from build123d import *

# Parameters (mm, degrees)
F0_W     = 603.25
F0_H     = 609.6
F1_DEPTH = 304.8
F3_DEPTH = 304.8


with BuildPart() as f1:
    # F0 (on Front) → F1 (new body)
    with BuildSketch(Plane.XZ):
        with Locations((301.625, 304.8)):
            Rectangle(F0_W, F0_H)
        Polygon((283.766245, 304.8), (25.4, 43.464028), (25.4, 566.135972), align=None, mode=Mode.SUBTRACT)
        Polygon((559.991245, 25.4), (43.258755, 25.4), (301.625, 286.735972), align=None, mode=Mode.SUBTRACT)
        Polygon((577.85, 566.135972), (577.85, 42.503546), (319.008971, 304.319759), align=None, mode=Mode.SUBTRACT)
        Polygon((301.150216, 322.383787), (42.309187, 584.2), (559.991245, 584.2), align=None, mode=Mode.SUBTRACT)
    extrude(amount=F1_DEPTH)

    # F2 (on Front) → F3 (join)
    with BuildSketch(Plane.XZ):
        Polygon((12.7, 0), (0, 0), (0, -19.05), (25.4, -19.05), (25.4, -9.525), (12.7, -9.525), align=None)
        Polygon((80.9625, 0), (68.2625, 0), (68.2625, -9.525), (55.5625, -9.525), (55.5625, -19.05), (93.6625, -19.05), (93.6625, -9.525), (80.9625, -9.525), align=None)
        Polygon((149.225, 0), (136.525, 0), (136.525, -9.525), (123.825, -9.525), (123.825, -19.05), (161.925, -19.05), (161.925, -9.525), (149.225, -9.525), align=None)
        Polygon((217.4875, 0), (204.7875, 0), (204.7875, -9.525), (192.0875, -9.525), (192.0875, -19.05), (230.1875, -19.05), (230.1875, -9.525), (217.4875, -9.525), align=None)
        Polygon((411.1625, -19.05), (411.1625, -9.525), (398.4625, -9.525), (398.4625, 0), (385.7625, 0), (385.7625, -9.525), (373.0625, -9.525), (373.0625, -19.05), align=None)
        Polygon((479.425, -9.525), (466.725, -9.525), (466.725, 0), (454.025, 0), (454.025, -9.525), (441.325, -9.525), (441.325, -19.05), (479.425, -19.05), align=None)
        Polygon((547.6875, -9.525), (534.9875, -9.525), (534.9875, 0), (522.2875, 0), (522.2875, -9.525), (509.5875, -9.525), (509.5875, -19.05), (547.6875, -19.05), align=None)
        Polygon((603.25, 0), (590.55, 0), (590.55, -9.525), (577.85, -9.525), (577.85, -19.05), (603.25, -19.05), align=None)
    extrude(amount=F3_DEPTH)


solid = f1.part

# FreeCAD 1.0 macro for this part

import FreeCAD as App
import Part
import Sketcher

V = App.Vector
Q = App.Units.Quantity


def add_polygon(sketch, points):
    """Adds a closed chain of lines whose ends are joined by coincident constraints."""
    first, n = sketch.GeometryCount, len(points)
    for a, b in zip(points, points[1:] + points[:1]):
        sketch.addGeometry(Part.LineSegment(App.Vector(*a, 0), App.Vector(*b, 0)), False)
    for i in range(n):
        sketch.addConstraint(Sketcher.Constraint("Coincident", first + i, 2, first + (i + 1) % n, 1))

doc = App.newDocument("Part")
body = doc.addObject("PartDesign::Body", "Body")

# Sketch on XZ plane
sketch1 = doc.addObject("Sketcher::SketchObject", "Sketch")
body.addObject(sketch1)
sketch1.AttachmentSupport = (doc.XZ_Plane, [""])
sketch1.MapMode = "FlatFace"
add_polygon(sketch1, [(0, 609.6), (0, 0), (603.25, 0), (603.25, 609.6)])  # lines 0-3
add_polygon(sketch1, [(301.625, 286.735972), (559.991245, 25.4), (43.258755, 25.4)])  # lines 4-6
add_polygon(sketch1, [(319.008971, 304.319759), (577.85, 566.135972), (577.85, 42.503546)])  # lines 7-9
add_polygon(sketch1, [(25.4, 566.135972), (283.766245, 304.8), (25.4, 43.464028)])  # lines 10-12
add_polygon(sketch1, [(559.991245, 584.2), (301.150216, 322.383787), (42.309187, 584.2)])  # lines 13-15
sketch1.addConstraint(Sketcher.Constraint("Vertical", 0))
sketch1.addConstraint(Sketcher.Constraint("Horizontal", 1))
sketch1.addConstraint(Sketcher.Constraint("Vertical", 2))
sketch1.addConstraint(Sketcher.Constraint("Horizontal", 3))
sketch1.addConstraint(Sketcher.Constraint("Horizontal", 5))
sketch1.addConstraint(Sketcher.Constraint("Vertical", 8))
sketch1.addConstraint(Sketcher.Constraint("Vertical", 12))
sketch1.addConstraint(Sketcher.Constraint("Horizontal", 15))
sketch1.addConstraint(Sketcher.Constraint("Coincident", 0, 2, -1, 1))
sketch1.addConstraint(Sketcher.Constraint("Parallel", 6, 7))
sketch1.addConstraint(Sketcher.Constraint("Parallel", 4, 9))
sketch1.addConstraint(Sketcher.Constraint("Parallel", 9, 10))
sketch1.addConstraint(Sketcher.Constraint("Parallel", 7, 11))
sketch1.addConstraint(Sketcher.Constraint("Parallel", 11, 13))
sketch1.addConstraint(Sketcher.Constraint("Parallel", 10, 14))
sketch1.addConstraint(Sketcher.Constraint("Horizontal", 7, 2, 12, 2))
sketch1.addConstraint(Sketcher.Constraint("Vertical", 4, 2, 15, 2))
sketch1.addConstraint(Sketcher.Constraint("Equal", 4, 6))
sketch1.addConstraint(Sketcher.Constraint("Equal", 6, 10))
sketch1.addConstraint(Sketcher.Constraint("Equal", 9, 13))
sketch1.addConstraint(Sketcher.Constraint("DistanceY", 0, 2, 0, 1, Q("24 in")))
sketch1.addConstraint(Sketcher.Constraint("DistanceY", -1, 1, 4, 2, Q("1 in")))
sketch1.addConstraint(Sketcher.Constraint("DistanceY", -1, 1, 10, 2, Q("12 in")))
sketch1.addConstraint(Sketcher.Constraint("DistanceX", -1, 1, 11, 2, Q("1 in")))
sketch1.addConstraint(Sketcher.Constraint("DistanceY", -1, 1, 14, 2, Q("23 in")))
sketch1.addConstraint(Sketcher.Constraint("DistanceX", 7, 2, 2, 2, Q("1 in")))
sketch1.addConstraint(Sketcher.Constraint("DistanceX", 1, 1, 1, 2, Q("23.75 in")))
sketch1.addConstraint(Sketcher.Constraint("DistanceX", -1, 1, 6, 2, Q("11.875 in")))
sketch1.addConstraint(Sketcher.Constraint("DistanceX", 5, 2, 5, 1, 516.73249))
sketch1.addConstraint(Sketcher.Constraint("DistanceX", 15, 1, 15, 2, 517.682058))
sketch1.addConstraint(Sketcher.Constraint("Distance", 4, 367.490962))
pad1 = doc.addObject("PartDesign::Pad", "Pad")
body.addObject(pad1)
pad1.Profile = sketch1
pad1.Length = Q("12 in")

# Sketch on XZ plane
sketch2 = doc.addObject("Sketcher::SketchObject", "Sketch001")
body.addObject(sketch2)
sketch2.AttachmentSupport = (doc.XZ_Plane, [""])
sketch2.MapMode = "FlatFace"
add_polygon(sketch2, [(12.7, 0), (0, 0), (0, -19.05), (25.4, -19.05), (25.4, -9.525), (12.7, -9.525)])  # lines 0-5
add_polygon(sketch2, [(80.9625, 0), (68.2625, 0), (68.2625, -9.525), (55.5625, -9.525), (55.5625, -19.05), (93.6625, -19.05), (93.6625, -9.525), (80.9625, -9.525)])  # lines 6-13
add_polygon(sketch2, [(149.225, 0), (136.525, 0), (136.525, -9.525), (123.825, -9.525), (123.825, -19.05), (161.925, -19.05), (161.925, -9.525), (149.225, -9.525)])  # lines 14-21
add_polygon(sketch2, [(217.4875, 0), (204.7875, 0), (204.7875, -9.525), (192.0875, -9.525), (192.0875, -19.05), (230.1875, -19.05), (230.1875, -9.525), (217.4875, -9.525)])  # lines 22-29
add_polygon(sketch2, [(411.1625, -19.05), (411.1625, -9.525), (398.4625, -9.525), (398.4625, 0), (385.7625, 0), (385.7625, -9.525), (373.0625, -9.525), (373.0625, -19.05)])  # lines 30-37
add_polygon(sketch2, [(479.425, -9.525), (466.725, -9.525), (466.725, 0), (454.025, 0), (454.025, -9.525), (441.325, -9.525), (441.325, -19.05), (479.425, -19.05)])  # lines 38-45
add_polygon(sketch2, [(547.6875, -9.525), (534.9875, -9.525), (534.9875, 0), (522.2875, 0), (522.2875, -9.525), (509.5875, -9.525), (509.5875, -19.05), (547.6875, -19.05)])  # lines 46-53
add_polygon(sketch2, [(603.25, 0), (590.55, 0), (590.55, -9.525), (577.85, -9.525), (577.85, -19.05), (603.25, -19.05)])  # lines 54-59
sketch2.addConstraint(Sketcher.Constraint("Horizontal", 0))
sketch2.addConstraint(Sketcher.Constraint("Vertical", 1))
sketch2.addConstraint(Sketcher.Constraint("Horizontal", 2))
sketch2.addConstraint(Sketcher.Constraint("Vertical", 3))
sketch2.addConstraint(Sketcher.Constraint("Horizontal", 4))
sketch2.addConstraint(Sketcher.Constraint("Vertical", 5))
sketch2.addConstraint(Sketcher.Constraint("Horizontal", 6))
sketch2.addConstraint(Sketcher.Constraint("Vertical", 7))
sketch2.addConstraint(Sketcher.Constraint("Horizontal", 8))
sketch2.addConstraint(Sketcher.Constraint("Vertical", 9))
sketch2.addConstraint(Sketcher.Constraint("Horizontal", 10))
sketch2.addConstraint(Sketcher.Constraint("Vertical", 11))
sketch2.addConstraint(Sketcher.Constraint("Horizontal", 12))
sketch2.addConstraint(Sketcher.Constraint("Vertical", 13))
sketch2.addConstraint(Sketcher.Constraint("Horizontal", 14))
sketch2.addConstraint(Sketcher.Constraint("Vertical", 15))
sketch2.addConstraint(Sketcher.Constraint("Horizontal", 16))
sketch2.addConstraint(Sketcher.Constraint("Vertical", 17))
sketch2.addConstraint(Sketcher.Constraint("Horizontal", 18))
sketch2.addConstraint(Sketcher.Constraint("Vertical", 19))
sketch2.addConstraint(Sketcher.Constraint("Horizontal", 20))
sketch2.addConstraint(Sketcher.Constraint("Vertical", 21))
sketch2.addConstraint(Sketcher.Constraint("Horizontal", 22))
sketch2.addConstraint(Sketcher.Constraint("Vertical", 23))
sketch2.addConstraint(Sketcher.Constraint("Horizontal", 24))
sketch2.addConstraint(Sketcher.Constraint("Vertical", 25))
sketch2.addConstraint(Sketcher.Constraint("Horizontal", 26))
sketch2.addConstraint(Sketcher.Constraint("Vertical", 27))
sketch2.addConstraint(Sketcher.Constraint("Horizontal", 28))
sketch2.addConstraint(Sketcher.Constraint("Vertical", 29))
sketch2.addConstraint(Sketcher.Constraint("Vertical", 30))
sketch2.addConstraint(Sketcher.Constraint("Horizontal", 31))
sketch2.addConstraint(Sketcher.Constraint("Vertical", 32))
sketch2.addConstraint(Sketcher.Constraint("Horizontal", 33))
sketch2.addConstraint(Sketcher.Constraint("Vertical", 34))
sketch2.addConstraint(Sketcher.Constraint("Horizontal", 35))
sketch2.addConstraint(Sketcher.Constraint("Vertical", 36))
sketch2.addConstraint(Sketcher.Constraint("Horizontal", 37))
sketch2.addConstraint(Sketcher.Constraint("Horizontal", 38))
sketch2.addConstraint(Sketcher.Constraint("Vertical", 39))
sketch2.addConstraint(Sketcher.Constraint("Horizontal", 40))
sketch2.addConstraint(Sketcher.Constraint("Vertical", 41))
sketch2.addConstraint(Sketcher.Constraint("Horizontal", 42))
sketch2.addConstraint(Sketcher.Constraint("Vertical", 43))
sketch2.addConstraint(Sketcher.Constraint("Horizontal", 44))
sketch2.addConstraint(Sketcher.Constraint("Vertical", 45))
sketch2.addConstraint(Sketcher.Constraint("Horizontal", 46))
sketch2.addConstraint(Sketcher.Constraint("Vertical", 47))
sketch2.addConstraint(Sketcher.Constraint("Horizontal", 48))
sketch2.addConstraint(Sketcher.Constraint("Vertical", 49))
sketch2.addConstraint(Sketcher.Constraint("Horizontal", 50))
sketch2.addConstraint(Sketcher.Constraint("Vertical", 51))
sketch2.addConstraint(Sketcher.Constraint("Horizontal", 52))
sketch2.addConstraint(Sketcher.Constraint("Vertical", 53))
sketch2.addConstraint(Sketcher.Constraint("Horizontal", 54))
sketch2.addConstraint(Sketcher.Constraint("Vertical", 55))
sketch2.addConstraint(Sketcher.Constraint("Horizontal", 56))
sketch2.addConstraint(Sketcher.Constraint("Vertical", 57))
sketch2.addConstraint(Sketcher.Constraint("Horizontal", 58))
sketch2.addConstraint(Sketcher.Constraint("Vertical", 59))
sketch2.addConstraint(Sketcher.Constraint("Coincident", 0, 2, -1, 1))
sketch2.addConstraint(Sketcher.Constraint("PointOnObject", 6, 2, -1))
sketch2.addConstraint(Sketcher.Constraint("PointOnObject", 14, 2, -1))
sketch2.addConstraint(Sketcher.Constraint("PointOnObject", 22, 2, -1))
sketch2.addConstraint(Sketcher.Constraint("PointOnObject", 32, 2, -1))
sketch2.addConstraint(Sketcher.Constraint("PointOnObject", 39, 2, -1))
sketch2.addConstraint(Sketcher.Constraint("PointOnObject", 47, 2, -1))
sketch2.addConstraint(Sketcher.Constraint("PointOnObject", 54, 2, -1))
sketch2.addConstraint(Sketcher.Constraint("Horizontal", 4, 2, 7, 2))
sketch2.addConstraint(Sketcher.Constraint("Horizontal", 2, 2, 9, 2))
sketch2.addConstraint(Sketcher.Constraint("Horizontal", 8, 2, 11, 2))
sketch2.addConstraint(Sketcher.Constraint("Horizontal", 12, 2, 15, 2))
sketch2.addConstraint(Sketcher.Constraint("Horizontal", 10, 2, 17, 2))
sketch2.addConstraint(Sketcher.Constraint("Horizontal", 16, 2, 19, 2))
sketch2.addConstraint(Sketcher.Constraint("Horizontal", 20, 2, 23, 2))
sketch2.addConstraint(Sketcher.Constraint("Horizontal", 18, 2, 25, 2))
sketch2.addConstraint(Sketcher.Constraint("Horizontal", 24, 2, 27, 2))
sketch2.addConstraint(Sketcher.Constraint("Horizontal", 28, 2, 30, 2))
sketch2.addConstraint(Sketcher.Constraint("Horizontal", 31, 2, 34, 2))
sketch2.addConstraint(Sketcher.Constraint("Horizontal", 26, 2, 36, 2))
sketch2.addConstraint(Sketcher.Constraint("Horizontal", 35, 2, 38, 2))
sketch2.addConstraint(Sketcher.Constraint("Horizontal", 38, 2, 41, 2))
sketch2.addConstraint(Sketcher.Constraint("Horizontal", 37, 2, 43, 2))
sketch2.addConstraint(Sketcher.Constraint("Horizontal", 45, 2, 46, 2))
sketch2.addConstraint(Sketcher.Constraint("Horizontal", 46, 2, 49, 2))
sketch2.addConstraint(Sketcher.Constraint("Horizontal", 44, 2, 51, 2))
sketch2.addConstraint(Sketcher.Constraint("Horizontal", 53, 2, 55, 2))
sketch2.addConstraint(Sketcher.Constraint("Horizontal", 52, 2, 57, 2))
sketch2.addConstraint(Sketcher.Constraint("Equal", 0, 4))
sketch2.addConstraint(Sketcher.Constraint("Equal", 4, 6))
sketch2.addConstraint(Sketcher.Constraint("Equal", 6, 8))
sketch2.addConstraint(Sketcher.Constraint("Equal", 8, 12))
sketch2.addConstraint(Sketcher.Constraint("Equal", 12, 14))
sketch2.addConstraint(Sketcher.Constraint("Equal", 14, 16))
sketch2.addConstraint(Sketcher.Constraint("Equal", 10, 18))
sketch2.addConstraint(Sketcher.Constraint("Equal", 20, 22))
sketch2.addConstraint(Sketcher.Constraint("Equal", 22, 24))
sketch2.addConstraint(Sketcher.Constraint("Equal", 18, 26))
sketch2.addConstraint(Sketcher.Constraint("Equal", 28, 31))
sketch2.addConstraint(Sketcher.Constraint("Equal", 31, 33))
sketch2.addConstraint(Sketcher.Constraint("Equal", 33, 35))
sketch2.addConstraint(Sketcher.Constraint("Equal", 35, 38))
sketch2.addConstraint(Sketcher.Constraint("Equal", 38, 40))
sketch2.addConstraint(Sketcher.Constraint("Equal", 40, 42))
sketch2.addConstraint(Sketcher.Constraint("Equal", 42, 46))
sketch2.addConstraint(Sketcher.Constraint("Equal", 46, 48))
sketch2.addConstraint(Sketcher.Constraint("Equal", 48, 50))
sketch2.addConstraint(Sketcher.Constraint("Equal", 50, 54))
sketch2.addConstraint(Sketcher.Constraint("Equal", 54, 56))
sketch2.addConstraint(Sketcher.Constraint("Equal", 3, 5))
sketch2.addConstraint(Sketcher.Constraint("DistanceX", 2, 1, 2, 2, Q("1 in")))
sketch2.addConstraint(Sketcher.Constraint("DistanceY", 1, 2, 1, 1, Q("0.75 in")))
sketch2.addConstraint(Sketcher.Constraint("DistanceX", -1, 1, 54, 2, Q("23.25 in")))
sketch2.addConstraint(Sketcher.Constraint("DistanceX", -1, 1, 6, 2, Q("2.6875 in")))
sketch2.addConstraint(Sketcher.Constraint("DistanceX", -1, 1, 14, 2, Q("5.375 in")))
sketch2.addConstraint(Sketcher.Constraint("DistanceX", -1, 1, 22, 2, Q("8.0625 in")))
sketch2.addConstraint(Sketcher.Constraint("DistanceX", -1, 1, 30, 2, Q("16.1875 in")))
sketch2.addConstraint(Sketcher.Constraint("DistanceX", -1, 1, 38, 2, Q("18.375 in")))
sketch2.addConstraint(Sketcher.Constraint("DistanceX", -1, 1, 46, 2, Q("21.0625 in")))
pad2 = doc.addObject("PartDesign::Pad", "Pad001")
body.addObject(pad2)
pad2.Profile = sketch2
pad2.Length = Q("12 in")

doc.recompute()
